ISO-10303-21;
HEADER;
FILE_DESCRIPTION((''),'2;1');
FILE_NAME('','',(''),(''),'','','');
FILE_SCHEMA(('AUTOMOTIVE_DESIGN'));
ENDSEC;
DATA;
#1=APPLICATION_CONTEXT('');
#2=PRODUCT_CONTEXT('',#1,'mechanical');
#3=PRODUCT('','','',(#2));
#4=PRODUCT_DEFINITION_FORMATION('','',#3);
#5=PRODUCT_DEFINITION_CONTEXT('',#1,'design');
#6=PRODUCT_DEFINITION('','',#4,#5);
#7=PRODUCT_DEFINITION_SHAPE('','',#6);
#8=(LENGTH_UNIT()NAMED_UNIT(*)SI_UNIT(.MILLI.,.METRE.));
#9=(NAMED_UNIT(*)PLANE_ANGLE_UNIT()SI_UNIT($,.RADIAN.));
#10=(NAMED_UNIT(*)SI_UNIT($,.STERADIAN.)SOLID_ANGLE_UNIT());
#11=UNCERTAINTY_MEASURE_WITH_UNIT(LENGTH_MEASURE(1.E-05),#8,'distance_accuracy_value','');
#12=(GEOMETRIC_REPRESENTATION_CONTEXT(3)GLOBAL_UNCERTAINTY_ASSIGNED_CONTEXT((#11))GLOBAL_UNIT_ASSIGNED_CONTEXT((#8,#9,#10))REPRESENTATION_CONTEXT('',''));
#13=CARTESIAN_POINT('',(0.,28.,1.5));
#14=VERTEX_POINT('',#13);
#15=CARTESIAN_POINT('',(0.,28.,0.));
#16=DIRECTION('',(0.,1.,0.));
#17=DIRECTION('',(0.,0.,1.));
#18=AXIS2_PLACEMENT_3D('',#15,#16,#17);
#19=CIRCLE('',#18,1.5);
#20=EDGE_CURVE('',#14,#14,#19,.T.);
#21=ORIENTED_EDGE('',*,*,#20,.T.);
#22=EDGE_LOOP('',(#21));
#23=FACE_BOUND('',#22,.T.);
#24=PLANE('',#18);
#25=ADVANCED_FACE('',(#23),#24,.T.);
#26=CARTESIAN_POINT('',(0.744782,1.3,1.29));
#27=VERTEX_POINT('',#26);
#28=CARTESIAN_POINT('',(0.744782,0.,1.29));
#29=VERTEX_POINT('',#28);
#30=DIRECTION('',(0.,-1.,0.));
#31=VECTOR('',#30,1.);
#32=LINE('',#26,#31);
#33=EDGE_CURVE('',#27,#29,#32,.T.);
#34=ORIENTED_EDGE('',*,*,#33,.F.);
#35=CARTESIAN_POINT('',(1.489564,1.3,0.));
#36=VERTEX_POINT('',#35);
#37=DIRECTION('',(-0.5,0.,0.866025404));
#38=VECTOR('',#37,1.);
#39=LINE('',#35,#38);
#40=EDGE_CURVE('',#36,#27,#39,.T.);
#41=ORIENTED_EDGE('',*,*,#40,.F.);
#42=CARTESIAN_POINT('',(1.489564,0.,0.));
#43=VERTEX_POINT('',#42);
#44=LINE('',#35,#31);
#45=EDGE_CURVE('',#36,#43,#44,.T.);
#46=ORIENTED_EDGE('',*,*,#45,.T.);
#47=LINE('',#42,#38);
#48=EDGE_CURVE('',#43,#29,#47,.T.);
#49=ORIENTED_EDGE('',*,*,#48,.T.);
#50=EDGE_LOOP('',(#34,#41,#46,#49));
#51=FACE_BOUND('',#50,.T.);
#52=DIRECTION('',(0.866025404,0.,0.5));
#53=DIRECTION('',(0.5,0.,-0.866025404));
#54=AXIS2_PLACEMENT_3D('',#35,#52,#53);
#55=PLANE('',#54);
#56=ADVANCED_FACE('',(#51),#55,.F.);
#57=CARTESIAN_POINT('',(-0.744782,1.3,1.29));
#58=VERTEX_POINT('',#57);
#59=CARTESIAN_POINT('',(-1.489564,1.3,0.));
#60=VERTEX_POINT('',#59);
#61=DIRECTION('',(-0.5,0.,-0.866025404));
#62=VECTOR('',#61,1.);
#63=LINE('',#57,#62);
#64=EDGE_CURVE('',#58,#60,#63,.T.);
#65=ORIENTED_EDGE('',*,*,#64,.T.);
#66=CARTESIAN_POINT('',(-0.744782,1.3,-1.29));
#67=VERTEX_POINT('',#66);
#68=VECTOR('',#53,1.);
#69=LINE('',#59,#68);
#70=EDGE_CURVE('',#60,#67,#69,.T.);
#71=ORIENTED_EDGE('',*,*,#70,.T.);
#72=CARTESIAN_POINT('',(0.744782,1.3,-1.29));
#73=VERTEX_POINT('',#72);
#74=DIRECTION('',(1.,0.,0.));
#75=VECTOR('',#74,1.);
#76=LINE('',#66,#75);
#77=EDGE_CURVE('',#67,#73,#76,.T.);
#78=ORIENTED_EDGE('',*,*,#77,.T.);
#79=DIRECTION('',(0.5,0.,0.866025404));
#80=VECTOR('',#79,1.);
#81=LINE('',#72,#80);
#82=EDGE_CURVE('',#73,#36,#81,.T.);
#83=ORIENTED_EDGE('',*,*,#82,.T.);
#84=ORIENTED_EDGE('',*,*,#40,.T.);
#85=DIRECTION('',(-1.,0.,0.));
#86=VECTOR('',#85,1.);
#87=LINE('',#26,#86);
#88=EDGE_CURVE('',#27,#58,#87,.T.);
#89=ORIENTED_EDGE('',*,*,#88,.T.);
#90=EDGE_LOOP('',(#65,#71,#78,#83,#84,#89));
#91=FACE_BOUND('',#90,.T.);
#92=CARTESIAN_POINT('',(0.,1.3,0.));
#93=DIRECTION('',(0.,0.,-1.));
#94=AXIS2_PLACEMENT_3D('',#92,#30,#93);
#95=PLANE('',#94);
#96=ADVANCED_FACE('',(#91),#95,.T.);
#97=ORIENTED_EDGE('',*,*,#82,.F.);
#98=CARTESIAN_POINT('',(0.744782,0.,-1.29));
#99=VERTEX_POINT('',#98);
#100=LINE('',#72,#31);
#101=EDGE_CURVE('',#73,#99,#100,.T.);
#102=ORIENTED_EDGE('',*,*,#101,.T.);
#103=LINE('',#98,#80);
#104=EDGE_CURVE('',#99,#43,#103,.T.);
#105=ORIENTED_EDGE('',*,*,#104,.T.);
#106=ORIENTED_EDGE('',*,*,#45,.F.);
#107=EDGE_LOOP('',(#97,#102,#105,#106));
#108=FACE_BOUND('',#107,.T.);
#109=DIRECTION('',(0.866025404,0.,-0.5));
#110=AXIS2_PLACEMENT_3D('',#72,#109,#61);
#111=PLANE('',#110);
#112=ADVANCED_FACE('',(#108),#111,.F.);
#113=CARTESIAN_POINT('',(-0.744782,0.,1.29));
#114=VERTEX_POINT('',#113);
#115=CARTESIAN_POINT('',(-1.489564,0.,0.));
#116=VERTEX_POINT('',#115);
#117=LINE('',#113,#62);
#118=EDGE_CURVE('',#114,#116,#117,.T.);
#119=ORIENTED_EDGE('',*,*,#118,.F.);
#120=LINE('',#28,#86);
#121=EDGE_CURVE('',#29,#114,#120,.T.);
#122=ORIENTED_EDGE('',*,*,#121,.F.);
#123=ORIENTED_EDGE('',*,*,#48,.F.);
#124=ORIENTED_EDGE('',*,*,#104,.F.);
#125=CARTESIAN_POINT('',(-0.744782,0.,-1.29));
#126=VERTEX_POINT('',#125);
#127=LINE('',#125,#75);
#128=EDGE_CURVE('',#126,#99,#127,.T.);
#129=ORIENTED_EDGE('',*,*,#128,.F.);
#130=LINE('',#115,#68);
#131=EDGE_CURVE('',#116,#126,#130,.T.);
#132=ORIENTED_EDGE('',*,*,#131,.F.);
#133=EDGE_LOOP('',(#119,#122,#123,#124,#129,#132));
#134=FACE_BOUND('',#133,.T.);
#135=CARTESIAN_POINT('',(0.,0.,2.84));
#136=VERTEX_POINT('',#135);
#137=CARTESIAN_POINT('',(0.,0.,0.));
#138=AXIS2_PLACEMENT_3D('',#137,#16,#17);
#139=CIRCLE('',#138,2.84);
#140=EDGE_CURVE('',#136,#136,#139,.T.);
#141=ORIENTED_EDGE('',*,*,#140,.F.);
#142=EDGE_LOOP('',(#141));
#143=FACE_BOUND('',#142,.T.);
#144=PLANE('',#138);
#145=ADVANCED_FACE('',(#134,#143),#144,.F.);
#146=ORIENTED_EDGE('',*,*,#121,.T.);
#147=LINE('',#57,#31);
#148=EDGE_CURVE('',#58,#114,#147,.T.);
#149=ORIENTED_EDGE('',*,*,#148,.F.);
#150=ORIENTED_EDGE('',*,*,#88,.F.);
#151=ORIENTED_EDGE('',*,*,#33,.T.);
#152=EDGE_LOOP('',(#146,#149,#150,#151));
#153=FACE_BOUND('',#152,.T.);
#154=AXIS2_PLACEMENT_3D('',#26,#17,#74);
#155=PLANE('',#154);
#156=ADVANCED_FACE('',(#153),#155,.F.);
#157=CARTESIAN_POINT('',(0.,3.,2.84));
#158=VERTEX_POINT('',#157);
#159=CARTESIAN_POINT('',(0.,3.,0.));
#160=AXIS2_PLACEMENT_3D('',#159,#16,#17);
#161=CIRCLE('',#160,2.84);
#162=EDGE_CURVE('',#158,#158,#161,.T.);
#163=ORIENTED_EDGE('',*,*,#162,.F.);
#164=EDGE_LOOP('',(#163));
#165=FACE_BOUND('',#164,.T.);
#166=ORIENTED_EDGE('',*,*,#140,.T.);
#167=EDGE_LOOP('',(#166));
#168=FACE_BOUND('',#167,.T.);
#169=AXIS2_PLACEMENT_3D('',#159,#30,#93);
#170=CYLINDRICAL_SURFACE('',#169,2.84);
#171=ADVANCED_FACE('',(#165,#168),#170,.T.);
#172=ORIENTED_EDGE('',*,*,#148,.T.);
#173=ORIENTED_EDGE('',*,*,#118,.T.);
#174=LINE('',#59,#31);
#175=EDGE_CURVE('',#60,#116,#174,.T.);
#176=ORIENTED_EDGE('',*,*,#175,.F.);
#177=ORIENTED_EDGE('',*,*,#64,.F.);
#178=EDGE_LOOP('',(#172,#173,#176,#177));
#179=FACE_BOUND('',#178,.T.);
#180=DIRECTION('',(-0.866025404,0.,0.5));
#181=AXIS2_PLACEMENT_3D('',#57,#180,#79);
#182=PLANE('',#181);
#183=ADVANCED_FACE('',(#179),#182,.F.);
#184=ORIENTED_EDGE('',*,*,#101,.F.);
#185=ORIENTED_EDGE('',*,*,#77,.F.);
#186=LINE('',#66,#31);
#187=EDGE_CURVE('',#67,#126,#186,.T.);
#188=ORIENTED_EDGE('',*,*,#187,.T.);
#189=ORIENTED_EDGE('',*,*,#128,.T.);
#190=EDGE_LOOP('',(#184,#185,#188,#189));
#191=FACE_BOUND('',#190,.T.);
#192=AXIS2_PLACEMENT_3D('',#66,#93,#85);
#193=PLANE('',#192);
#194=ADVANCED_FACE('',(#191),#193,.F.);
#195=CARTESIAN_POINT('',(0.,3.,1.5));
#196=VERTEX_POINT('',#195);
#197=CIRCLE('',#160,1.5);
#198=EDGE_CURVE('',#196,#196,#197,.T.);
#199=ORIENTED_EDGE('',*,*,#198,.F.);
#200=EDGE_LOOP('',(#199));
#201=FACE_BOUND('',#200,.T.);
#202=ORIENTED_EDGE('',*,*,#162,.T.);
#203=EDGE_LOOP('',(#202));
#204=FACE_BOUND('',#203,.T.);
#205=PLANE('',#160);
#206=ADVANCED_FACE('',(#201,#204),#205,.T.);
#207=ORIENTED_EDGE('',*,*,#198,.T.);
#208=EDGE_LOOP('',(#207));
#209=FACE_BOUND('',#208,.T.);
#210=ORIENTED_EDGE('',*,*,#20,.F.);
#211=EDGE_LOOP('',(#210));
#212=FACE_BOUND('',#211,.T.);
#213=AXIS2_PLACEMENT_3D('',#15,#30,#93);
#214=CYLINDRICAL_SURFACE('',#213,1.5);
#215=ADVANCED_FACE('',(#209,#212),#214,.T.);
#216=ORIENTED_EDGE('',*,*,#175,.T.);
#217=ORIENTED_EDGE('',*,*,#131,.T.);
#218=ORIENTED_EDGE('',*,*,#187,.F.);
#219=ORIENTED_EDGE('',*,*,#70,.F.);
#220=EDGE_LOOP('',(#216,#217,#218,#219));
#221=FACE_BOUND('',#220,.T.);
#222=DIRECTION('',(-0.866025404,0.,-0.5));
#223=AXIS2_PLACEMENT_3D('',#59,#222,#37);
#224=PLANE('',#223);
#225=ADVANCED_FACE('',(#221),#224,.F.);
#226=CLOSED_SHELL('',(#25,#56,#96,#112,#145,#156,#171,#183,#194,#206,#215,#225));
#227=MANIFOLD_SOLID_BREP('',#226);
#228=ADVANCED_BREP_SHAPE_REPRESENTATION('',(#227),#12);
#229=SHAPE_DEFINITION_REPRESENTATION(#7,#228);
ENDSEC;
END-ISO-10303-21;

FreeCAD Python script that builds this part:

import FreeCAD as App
import Part
import Sketcher
from FreeCAD import Vector
Q = App.Units.Quantity

doc = App.newDocument("Part")
body = doc.addObject("PartDesign::Body", "Body")

# Sketch on XZ plane
sketch1 = body.newObject("Sketcher::SketchObject", "Sketch")
sketch1.AttachmentSupport = (doc.getObject("XZ_Plane"), [""])
sketch1.MapMode = "FlatFace"
sketch1.addGeometry(Part.Circle(Vector(0, 0, 0), Vector(0, 0, 1), 2.8), False)
sketch1.addConstraint([
    Sketcher.Constraint("Coincident", 0, 3, -1, 1),
    Sketcher.Constraint("Diameter", 0, Q("5.68 mm")),
])
pad1 = body.newObject("PartDesign::Pad", "Pad")
pad1.Profile = sketch1
pad1.Length = 3
pad1.Reversed = True

# Sketch on XZ plane
sketch2 = body.newObject("Sketcher::SketchObject", "Sketch001")
sketch2.AttachmentSupport = (doc.getObject("XZ_Plane"), [""])
sketch2.MapMode = "FlatFace"
sketch2.AttachmentOffset = App.Placement(Vector(0, 0, -3), App.Rotation())
sketch2.addGeometry(Part.Circle(Vector(0, 0, 0), Vector(0, 0, 1), 1.5), False)
sketch2.addConstraint([
    Sketcher.Constraint("Coincident", 0, 3, -1, 1),
    Sketcher.Constraint("Diameter", 0, Q("3 mm")),
])
pad2 = body.newObject("PartDesign::Pad", "Pad001")
pad2.Profile = sketch2
pad2.Length = 25
pad2.Reversed = True

# Sketch on XZ plane
sketch3 = body.newObject("Sketcher::SketchObject", "Sketch002")
sketch3.AttachmentSupport = (doc.getObject("XZ_Plane"), [""])
sketch3.MapMode = "FlatFace"
sketch3.addGeometry([
    Part.LineSegment(Vector(0.7, 1.3, 0), Vector(-0.7, 1.3, 0)),  # 0
    Part.LineSegment(Vector(-0.7, 1.3, 0), Vector(-1.5, 0, 0)),  # 1
    Part.LineSegment(Vector(-1.5, 0, 0), Vector(-0.7, -1.3, 0)),  # 2
    Part.LineSegment(Vector(-0.7, -1.3, 0), Vector(0.7, -1.3, 0)),  # 3
    Part.LineSegment(Vector(0.7, -1.3, 0), Vector(1.5, 0, 0)),  # 4
    Part.LineSegment(Vector(1.5, 0, 0), Vector(0.7, 1.3, 0)),  # 5
], False)
sketch3.addConstraint([
    Sketcher.Constraint("Coincident", 0, 2, 1, 1),
    Sketcher.Constraint("Coincident", 1, 2, 2, 1),
    Sketcher.Constraint("Coincident", 2, 2, 3, 1),
    Sketcher.Constraint("Coincident", 3, 2, 4, 1),
    Sketcher.Constraint("Coincident", 4, 2, 5, 1),
    Sketcher.Constraint("Coincident", 5, 2, 0, 1),
    Sketcher.Constraint("Horizontal", 0),
    Sketcher.Constraint("Horizontal", 3),
    Sketcher.Constraint("Symmetric", 0, 2, 3, 2, -1, 1),
    Sketcher.Constraint("Symmetric", 1, 2, 4, 2, -1, 1),
    Sketcher.Constraint("PointOnObject", 1, 2, -1),
    Sketcher.Constraint("Parallel", 2, 5),
    Sketcher.Constraint("Vertical", 0, 2, 2, 2),
    Sketcher.Constraint("Angle", 1, Q("-120 deg")),
    Sketcher.Constraint("DistanceY", -1, 1, 0, 2, Q("1.29 mm")),
    Sketcher.Constraint("DistanceX", 0, 2, 0, 1, Q("1.489564 mm")),
])
pocket1 = body.newObject("PartDesign::Pocket", "Pocket")
pocket1.Profile = sketch3
pocket1.Length = 1.3

doc.recompute()
